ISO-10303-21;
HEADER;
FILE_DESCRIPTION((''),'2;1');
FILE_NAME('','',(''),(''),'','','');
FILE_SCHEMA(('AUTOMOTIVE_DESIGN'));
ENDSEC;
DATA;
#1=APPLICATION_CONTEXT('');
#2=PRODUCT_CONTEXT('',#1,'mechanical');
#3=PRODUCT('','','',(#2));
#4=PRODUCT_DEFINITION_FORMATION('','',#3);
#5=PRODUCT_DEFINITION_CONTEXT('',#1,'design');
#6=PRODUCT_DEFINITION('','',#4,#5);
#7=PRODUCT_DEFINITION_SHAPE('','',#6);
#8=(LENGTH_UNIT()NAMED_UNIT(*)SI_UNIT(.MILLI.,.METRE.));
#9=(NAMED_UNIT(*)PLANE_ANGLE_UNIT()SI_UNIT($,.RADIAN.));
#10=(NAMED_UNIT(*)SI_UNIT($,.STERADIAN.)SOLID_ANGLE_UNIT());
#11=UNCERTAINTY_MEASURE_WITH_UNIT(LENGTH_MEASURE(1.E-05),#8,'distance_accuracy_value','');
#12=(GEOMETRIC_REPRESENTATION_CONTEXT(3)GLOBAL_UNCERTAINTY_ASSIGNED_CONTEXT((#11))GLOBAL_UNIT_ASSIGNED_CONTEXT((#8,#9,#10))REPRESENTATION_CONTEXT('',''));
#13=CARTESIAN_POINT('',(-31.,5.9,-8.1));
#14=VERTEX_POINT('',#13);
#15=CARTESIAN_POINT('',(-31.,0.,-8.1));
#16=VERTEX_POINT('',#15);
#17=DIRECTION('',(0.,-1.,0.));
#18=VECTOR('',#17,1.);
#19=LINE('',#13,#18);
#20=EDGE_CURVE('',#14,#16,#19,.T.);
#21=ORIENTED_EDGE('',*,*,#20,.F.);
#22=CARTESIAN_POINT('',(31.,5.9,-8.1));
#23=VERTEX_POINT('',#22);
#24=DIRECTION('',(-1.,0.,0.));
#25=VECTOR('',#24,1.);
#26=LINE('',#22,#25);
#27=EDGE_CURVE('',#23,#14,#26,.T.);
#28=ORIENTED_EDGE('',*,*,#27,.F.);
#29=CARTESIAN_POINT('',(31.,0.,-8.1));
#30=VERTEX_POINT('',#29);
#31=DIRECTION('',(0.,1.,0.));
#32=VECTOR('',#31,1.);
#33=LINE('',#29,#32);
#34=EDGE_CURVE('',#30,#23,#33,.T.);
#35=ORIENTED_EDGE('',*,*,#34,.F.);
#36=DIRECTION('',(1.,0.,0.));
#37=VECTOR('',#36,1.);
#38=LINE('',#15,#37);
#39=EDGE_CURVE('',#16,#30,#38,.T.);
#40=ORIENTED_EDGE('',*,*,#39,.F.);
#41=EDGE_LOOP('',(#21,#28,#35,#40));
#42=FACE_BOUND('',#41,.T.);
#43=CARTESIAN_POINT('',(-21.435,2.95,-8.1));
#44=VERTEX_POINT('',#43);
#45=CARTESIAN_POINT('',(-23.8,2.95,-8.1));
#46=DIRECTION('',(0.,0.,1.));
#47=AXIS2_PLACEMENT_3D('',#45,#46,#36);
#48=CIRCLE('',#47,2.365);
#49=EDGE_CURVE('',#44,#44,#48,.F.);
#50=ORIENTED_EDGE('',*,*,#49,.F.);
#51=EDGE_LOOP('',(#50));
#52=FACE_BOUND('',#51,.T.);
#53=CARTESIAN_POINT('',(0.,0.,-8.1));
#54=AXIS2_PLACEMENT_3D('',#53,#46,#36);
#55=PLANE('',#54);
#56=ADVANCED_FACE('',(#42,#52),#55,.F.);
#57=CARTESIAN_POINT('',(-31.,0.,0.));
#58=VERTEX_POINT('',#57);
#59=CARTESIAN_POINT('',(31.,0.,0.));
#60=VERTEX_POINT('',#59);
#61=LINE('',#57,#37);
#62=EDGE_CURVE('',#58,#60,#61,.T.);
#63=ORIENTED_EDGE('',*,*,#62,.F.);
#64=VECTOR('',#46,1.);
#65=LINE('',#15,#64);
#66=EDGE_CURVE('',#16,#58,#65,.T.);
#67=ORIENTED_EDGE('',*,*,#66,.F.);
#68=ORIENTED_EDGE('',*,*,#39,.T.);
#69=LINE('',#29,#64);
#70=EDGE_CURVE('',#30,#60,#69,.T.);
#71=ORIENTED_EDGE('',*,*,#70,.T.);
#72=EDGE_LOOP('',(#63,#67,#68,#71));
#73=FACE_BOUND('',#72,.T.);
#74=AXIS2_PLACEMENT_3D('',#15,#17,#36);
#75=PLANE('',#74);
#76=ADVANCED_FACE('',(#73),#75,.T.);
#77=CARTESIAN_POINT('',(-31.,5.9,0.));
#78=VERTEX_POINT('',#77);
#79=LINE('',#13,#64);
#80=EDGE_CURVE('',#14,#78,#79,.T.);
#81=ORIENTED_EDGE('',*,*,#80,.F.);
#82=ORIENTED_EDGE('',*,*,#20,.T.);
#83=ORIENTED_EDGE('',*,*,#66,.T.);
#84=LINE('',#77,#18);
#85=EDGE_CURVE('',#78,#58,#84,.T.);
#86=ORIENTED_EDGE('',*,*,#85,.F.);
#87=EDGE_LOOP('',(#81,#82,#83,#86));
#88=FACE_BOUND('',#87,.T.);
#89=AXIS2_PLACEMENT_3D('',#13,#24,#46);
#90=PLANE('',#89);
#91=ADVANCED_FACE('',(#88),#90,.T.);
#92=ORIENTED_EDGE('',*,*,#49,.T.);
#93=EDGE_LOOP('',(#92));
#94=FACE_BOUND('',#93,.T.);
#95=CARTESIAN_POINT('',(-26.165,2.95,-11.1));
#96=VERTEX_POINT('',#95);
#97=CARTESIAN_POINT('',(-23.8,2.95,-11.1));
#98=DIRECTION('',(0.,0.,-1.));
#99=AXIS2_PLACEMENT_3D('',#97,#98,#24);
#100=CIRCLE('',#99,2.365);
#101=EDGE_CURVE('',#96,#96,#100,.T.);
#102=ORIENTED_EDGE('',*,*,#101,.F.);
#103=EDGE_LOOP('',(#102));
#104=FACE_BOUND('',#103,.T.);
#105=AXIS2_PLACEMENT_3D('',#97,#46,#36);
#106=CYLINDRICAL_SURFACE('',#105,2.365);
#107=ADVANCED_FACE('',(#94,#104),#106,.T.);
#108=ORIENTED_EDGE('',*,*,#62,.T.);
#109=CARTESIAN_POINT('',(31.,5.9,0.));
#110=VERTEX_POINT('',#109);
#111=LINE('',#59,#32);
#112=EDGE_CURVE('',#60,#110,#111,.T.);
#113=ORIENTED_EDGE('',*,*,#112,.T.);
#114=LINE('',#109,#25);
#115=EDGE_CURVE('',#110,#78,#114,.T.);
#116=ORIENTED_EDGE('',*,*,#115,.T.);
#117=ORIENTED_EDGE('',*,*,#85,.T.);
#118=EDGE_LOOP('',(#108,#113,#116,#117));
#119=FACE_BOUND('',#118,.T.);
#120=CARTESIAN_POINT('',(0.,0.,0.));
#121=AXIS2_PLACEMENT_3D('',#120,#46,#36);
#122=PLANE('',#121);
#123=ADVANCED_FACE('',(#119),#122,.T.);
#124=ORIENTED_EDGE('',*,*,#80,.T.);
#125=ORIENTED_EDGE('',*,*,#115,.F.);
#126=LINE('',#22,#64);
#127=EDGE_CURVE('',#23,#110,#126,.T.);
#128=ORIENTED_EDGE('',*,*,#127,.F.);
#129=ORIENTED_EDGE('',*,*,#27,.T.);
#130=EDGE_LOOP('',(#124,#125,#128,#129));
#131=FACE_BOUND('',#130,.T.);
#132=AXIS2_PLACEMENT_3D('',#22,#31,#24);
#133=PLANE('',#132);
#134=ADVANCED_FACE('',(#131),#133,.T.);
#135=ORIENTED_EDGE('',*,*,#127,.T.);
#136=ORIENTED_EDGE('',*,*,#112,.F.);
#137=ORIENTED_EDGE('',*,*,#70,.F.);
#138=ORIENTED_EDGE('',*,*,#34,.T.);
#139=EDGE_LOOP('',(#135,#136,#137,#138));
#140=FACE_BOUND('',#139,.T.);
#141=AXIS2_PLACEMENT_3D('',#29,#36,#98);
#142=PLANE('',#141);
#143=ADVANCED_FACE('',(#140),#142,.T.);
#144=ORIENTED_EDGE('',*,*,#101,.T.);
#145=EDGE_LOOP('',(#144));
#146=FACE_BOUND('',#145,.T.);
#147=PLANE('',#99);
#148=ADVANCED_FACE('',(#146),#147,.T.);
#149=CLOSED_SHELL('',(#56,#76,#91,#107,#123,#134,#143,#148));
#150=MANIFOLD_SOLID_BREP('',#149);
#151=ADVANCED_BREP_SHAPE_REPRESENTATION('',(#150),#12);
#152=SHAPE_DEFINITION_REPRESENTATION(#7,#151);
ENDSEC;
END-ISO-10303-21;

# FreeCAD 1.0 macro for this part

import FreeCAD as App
import Part
import Sketcher


def add_polygon(sketch, points):
    """Adds a closed chain of lines whose ends are joined by coincident constraints."""
    first, n = sketch.GeometryCount, len(points)
    for a, b in zip(points, points[1:] + points[:1]):
        sketch.addGeometry(Part.LineSegment(App.Vector(*a, 0), App.Vector(*b, 0)), False)
    for i in range(n):
        sketch.addConstraint(Sketcher.Constraint("Coincident", first + i, 2, first + (i + 1) % n, 1))

doc = App.newDocument("Part")
params = doc.addObject("Spreadsheet::Sheet", "Params")
for row, (alias, value) in enumerate([
    ("sketch1_width", "62 mm"),
    ("sketch1_height", "5.9 mm"),
    ("pad1_length", "8.1 mm"),
    ("sketch2_diameter", "4.73 mm"),
    ("pad2_length", "3 mm"),
], start=1):
    params.set(f"A{row}", alias)
    params.set(f"B{row}", "=" + value)
    params.setAlias(f"B{row}", alias)

body = doc.addObject("PartDesign::Body", "Body")

# Sketch on XY plane
sketch1 = body.newObject("Sketcher::SketchObject", "Sketch")
sketch1.AttachmentSupport = (doc.getObject("XY_Plane"), [""])
sketch1.MapMode = "FlatFace"
add_polygon(sketch1, [(-31, 6), (-31, 0), (31, 0), (31, 6)])  # lines 0-3
sketch1.addConstraint([
    Sketcher.Constraint("Vertical", 0),
    Sketcher.Constraint("Horizontal", 1),
    Sketcher.Constraint("Vertical", 2),
    Sketcher.Constraint("Horizontal", 3),
    Sketcher.Constraint("Symmetric", 0, 2, 1, 2, -1, 1),
    Sketcher.Constraint("DistanceX", 1, 1, 1, 2, 62.0),
    Sketcher.Constraint("DistanceY", 0, 2, 0, 1, 5.9),
])
sketch1.setExpression("Constraints[9]", "Params.sketch1_width")
sketch1.setExpression("Constraints[10]", "Params.sketch1_height")
pad1 = body.newObject("PartDesign::Pad", "Pad")
pad1.Profile = sketch1
pad1.setExpression("Length", "Params.pad1_length")
pad1.Reversed = True

# Sketch on XY plane
sketch2 = body.newObject("Sketcher::SketchObject", "Sketch001")
sketch2.AttachmentSupport = (doc.getObject("XY_Plane"), [""])
sketch2.MapMode = "FlatFace"
sketch2.AttachmentOffset = App.Placement(App.Vector(0, 0, -8.1), App.Rotation())
sketch2.addGeometry(Part.Circle(App.Vector(-23.8, 3, 0), App.Vector(0, 0, 1), 2.4), False)
sketch2.addConstraint([
    Sketcher.Constraint("Diameter", 0, 4.73),
    Sketcher.Constraint("DistanceX", 0, 3, -1, 1, 23.8),
    Sketcher.Constraint("DistanceY", -1, 1, 0, 3, 2.95),
])
sketch2.setExpression("Constraints[0]", "Params.sketch2_diameter")
pad2 = body.newObject("PartDesign::Pad", "Pad001")
pad2.Profile = sketch2
pad2.setExpression("Length", "Params.pad2_length")
pad2.Reversed = True

doc.recompute()
